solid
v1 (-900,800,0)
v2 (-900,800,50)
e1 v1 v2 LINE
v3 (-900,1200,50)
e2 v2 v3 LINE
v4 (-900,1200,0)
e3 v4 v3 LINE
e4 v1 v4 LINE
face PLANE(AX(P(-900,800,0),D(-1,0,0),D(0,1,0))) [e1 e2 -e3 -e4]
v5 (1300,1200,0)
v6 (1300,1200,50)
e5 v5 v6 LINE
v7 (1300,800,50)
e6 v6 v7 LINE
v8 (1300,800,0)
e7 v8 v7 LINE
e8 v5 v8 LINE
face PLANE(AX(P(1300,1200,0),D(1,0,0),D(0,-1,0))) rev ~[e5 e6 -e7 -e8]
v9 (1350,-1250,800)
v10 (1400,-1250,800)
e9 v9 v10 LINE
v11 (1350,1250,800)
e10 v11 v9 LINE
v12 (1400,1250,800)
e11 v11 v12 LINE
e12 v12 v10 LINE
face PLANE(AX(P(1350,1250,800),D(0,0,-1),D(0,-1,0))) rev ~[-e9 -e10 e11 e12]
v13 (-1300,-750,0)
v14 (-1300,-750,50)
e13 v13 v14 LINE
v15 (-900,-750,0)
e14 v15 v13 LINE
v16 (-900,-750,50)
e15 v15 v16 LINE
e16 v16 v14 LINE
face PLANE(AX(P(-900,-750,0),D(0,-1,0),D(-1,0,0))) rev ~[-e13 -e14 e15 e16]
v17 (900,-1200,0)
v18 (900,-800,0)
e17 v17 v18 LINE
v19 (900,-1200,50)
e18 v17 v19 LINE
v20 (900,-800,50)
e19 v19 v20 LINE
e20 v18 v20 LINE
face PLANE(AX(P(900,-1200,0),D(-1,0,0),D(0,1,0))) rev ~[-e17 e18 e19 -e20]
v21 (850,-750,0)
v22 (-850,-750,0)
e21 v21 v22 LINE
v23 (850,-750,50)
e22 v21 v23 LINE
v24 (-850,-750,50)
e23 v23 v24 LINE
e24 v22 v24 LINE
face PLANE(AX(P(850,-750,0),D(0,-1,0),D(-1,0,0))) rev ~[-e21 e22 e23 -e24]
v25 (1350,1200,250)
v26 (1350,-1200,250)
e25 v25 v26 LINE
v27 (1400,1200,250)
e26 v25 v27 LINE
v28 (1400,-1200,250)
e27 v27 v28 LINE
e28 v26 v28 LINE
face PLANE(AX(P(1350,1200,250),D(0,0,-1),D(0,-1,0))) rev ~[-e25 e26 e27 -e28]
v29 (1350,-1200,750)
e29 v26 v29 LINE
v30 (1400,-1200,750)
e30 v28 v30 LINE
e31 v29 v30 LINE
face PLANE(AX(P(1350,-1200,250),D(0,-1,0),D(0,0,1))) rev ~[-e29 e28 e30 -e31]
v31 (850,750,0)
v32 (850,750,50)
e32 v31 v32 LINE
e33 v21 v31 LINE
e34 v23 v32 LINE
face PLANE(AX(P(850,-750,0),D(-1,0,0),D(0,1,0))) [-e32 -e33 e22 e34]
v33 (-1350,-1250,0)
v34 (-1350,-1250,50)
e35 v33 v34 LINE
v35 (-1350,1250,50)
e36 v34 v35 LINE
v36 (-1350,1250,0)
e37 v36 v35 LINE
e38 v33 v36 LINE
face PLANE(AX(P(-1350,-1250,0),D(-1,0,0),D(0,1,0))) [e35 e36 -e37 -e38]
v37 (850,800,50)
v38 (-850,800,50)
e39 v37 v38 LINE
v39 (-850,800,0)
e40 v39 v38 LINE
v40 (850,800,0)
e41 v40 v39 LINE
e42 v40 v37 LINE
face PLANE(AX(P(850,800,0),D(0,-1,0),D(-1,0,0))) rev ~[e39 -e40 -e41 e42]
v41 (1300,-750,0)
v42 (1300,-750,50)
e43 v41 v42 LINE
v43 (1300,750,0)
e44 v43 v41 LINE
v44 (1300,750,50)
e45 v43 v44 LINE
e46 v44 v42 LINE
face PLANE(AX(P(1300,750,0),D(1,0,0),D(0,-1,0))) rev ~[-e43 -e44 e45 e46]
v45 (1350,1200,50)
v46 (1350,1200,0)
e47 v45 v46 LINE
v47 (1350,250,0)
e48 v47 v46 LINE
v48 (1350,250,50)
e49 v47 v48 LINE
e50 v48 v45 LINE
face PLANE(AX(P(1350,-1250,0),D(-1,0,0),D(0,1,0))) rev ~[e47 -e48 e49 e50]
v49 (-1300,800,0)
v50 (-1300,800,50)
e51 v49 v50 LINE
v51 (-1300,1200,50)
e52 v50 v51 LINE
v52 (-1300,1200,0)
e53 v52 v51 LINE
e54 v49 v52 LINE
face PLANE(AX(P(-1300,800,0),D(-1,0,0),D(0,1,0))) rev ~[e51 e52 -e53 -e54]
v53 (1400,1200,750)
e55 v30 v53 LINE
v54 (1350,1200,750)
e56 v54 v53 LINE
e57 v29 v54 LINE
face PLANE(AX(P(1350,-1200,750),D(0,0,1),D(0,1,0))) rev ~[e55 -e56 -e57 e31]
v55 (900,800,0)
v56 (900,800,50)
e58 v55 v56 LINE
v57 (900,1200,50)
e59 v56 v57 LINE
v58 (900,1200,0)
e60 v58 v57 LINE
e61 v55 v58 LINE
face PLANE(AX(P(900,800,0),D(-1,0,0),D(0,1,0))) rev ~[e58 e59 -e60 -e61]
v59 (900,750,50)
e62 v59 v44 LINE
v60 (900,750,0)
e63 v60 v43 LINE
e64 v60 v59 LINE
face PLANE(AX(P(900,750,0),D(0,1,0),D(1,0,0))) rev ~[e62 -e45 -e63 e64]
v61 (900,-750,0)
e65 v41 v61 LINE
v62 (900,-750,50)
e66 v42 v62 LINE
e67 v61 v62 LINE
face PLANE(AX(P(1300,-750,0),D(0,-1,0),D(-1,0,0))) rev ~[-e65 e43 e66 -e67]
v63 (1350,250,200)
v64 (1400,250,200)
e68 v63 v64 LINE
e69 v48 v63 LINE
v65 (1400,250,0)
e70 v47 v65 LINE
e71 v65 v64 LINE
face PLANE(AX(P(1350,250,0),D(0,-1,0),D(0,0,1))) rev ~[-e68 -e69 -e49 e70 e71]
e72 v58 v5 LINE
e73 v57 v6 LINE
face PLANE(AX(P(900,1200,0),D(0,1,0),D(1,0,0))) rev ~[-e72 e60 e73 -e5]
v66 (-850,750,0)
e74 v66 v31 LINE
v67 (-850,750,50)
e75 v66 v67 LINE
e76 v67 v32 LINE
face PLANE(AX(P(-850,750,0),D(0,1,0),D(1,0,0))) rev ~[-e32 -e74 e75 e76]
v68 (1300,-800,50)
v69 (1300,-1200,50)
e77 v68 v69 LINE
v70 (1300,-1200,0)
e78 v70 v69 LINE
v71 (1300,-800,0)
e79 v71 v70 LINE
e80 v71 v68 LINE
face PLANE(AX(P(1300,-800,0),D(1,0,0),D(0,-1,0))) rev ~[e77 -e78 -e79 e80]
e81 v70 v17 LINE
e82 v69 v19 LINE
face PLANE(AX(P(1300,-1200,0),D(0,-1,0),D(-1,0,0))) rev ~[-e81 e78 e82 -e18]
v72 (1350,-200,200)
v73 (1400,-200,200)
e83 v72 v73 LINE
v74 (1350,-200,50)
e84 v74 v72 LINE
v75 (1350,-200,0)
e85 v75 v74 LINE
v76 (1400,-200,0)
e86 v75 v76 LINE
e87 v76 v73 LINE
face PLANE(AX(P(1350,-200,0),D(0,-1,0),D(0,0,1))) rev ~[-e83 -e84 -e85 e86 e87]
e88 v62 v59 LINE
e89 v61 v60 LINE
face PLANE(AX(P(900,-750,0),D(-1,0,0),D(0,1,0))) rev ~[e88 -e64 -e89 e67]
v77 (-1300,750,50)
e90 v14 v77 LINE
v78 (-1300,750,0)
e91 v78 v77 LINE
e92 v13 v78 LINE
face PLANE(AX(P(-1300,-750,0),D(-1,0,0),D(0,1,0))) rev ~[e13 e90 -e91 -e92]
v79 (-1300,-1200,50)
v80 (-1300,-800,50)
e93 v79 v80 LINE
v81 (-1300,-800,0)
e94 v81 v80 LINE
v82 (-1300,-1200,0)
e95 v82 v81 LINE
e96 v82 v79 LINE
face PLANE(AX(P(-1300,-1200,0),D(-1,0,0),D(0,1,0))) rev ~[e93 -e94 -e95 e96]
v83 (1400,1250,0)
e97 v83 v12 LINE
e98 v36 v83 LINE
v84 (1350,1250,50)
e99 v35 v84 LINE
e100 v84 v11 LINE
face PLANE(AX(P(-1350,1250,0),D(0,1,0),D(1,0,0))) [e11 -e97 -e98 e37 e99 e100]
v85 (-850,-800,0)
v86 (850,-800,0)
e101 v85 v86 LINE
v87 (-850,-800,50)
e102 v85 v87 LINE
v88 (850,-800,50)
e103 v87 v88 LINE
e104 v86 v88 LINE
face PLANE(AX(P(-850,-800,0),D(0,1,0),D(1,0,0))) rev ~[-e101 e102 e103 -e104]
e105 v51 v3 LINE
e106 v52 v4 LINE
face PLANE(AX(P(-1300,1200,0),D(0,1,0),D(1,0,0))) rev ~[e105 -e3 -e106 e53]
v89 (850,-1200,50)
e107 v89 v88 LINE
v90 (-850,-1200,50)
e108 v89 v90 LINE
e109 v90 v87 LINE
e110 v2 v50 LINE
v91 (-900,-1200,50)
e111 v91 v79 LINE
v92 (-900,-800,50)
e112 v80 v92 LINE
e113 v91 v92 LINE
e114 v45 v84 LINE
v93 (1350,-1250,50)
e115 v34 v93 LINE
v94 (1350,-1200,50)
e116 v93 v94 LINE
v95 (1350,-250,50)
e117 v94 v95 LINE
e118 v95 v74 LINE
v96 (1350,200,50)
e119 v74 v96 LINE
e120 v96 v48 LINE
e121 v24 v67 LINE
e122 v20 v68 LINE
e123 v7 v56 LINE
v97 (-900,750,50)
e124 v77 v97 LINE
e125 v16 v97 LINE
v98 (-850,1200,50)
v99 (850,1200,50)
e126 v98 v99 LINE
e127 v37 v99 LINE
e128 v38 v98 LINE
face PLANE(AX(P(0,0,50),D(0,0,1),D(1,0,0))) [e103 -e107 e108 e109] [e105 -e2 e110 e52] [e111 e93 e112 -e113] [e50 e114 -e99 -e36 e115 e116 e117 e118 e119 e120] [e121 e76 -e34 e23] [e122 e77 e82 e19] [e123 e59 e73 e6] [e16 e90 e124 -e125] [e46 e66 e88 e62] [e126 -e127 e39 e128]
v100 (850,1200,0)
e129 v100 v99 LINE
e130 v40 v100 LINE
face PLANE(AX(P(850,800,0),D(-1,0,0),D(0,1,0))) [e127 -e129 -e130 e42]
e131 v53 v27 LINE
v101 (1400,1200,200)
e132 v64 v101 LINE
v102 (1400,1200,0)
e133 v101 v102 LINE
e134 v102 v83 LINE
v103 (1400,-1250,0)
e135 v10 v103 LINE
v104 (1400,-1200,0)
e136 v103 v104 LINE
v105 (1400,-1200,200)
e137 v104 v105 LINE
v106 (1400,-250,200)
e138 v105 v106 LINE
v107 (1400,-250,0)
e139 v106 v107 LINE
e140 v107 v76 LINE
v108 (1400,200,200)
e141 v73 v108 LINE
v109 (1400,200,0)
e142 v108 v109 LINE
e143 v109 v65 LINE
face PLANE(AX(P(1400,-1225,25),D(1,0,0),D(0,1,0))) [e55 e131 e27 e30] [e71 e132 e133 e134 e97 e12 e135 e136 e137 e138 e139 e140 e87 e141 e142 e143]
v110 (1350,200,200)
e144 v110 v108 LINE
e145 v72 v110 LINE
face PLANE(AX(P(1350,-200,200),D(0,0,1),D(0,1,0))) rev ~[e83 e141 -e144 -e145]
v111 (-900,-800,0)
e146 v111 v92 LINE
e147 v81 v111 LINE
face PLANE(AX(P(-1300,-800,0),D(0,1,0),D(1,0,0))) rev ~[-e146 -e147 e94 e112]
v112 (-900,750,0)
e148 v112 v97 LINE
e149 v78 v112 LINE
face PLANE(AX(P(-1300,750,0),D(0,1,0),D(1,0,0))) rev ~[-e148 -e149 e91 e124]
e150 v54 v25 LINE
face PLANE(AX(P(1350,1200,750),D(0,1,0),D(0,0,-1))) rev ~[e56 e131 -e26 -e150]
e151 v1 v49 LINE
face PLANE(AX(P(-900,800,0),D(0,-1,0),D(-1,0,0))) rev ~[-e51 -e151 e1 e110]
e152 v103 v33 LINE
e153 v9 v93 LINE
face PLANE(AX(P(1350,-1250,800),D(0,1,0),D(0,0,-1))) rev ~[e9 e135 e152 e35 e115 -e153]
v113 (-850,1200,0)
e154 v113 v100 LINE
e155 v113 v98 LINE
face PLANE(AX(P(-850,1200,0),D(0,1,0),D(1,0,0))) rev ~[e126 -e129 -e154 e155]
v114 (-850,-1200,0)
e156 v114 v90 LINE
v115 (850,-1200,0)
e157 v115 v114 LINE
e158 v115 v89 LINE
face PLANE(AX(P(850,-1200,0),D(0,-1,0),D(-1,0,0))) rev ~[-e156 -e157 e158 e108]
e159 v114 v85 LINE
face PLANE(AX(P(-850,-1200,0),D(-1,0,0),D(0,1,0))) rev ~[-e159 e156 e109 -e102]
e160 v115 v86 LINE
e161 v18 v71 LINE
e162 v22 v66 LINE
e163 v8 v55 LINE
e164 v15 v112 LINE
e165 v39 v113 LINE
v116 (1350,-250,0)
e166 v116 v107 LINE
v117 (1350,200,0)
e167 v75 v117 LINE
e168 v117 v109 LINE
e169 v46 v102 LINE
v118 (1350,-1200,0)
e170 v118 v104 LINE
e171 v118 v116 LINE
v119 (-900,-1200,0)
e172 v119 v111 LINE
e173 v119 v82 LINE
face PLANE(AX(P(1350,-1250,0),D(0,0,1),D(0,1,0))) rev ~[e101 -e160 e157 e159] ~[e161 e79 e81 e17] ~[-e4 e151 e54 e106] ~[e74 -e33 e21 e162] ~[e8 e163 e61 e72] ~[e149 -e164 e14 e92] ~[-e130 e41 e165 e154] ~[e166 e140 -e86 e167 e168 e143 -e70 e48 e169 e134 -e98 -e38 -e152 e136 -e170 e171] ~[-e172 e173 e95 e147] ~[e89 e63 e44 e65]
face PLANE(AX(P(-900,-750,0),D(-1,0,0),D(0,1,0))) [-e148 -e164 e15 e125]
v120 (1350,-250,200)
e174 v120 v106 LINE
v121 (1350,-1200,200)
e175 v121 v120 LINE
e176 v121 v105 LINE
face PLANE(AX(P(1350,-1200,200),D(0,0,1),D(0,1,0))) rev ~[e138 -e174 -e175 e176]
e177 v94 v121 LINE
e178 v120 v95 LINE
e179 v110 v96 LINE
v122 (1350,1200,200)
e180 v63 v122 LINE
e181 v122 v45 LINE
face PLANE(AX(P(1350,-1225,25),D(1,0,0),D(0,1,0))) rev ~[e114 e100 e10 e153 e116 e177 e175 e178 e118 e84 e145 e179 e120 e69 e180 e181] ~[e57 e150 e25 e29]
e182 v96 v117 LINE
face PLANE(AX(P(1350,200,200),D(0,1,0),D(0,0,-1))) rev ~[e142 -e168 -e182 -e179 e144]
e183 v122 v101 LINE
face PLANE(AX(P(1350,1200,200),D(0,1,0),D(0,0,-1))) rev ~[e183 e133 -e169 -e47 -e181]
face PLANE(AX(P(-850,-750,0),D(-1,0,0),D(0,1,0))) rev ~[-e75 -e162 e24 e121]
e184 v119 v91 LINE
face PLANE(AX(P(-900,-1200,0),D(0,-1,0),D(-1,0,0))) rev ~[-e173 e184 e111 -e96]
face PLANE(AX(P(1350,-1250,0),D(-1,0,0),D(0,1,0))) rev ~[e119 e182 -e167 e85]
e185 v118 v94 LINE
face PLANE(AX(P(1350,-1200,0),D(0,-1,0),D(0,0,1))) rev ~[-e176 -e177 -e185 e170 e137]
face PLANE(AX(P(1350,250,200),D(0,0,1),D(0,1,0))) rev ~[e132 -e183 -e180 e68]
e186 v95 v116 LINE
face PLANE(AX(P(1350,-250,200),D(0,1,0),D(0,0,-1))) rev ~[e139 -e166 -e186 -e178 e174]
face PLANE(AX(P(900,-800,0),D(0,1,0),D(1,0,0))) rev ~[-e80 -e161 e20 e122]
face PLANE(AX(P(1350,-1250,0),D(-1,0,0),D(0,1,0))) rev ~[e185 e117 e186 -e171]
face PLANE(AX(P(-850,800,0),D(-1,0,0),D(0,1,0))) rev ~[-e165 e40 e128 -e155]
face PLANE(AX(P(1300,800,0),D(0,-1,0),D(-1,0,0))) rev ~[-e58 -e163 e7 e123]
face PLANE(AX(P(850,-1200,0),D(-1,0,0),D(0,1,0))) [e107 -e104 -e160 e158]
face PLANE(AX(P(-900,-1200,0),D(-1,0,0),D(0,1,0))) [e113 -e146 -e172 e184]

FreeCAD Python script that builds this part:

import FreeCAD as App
import Part
import Sketcher
from FreeCAD import Vector
Q = App.Units.Quantity


def add_polygon(sketch, points):
    """Adds a closed chain of lines whose ends are joined by coincident constraints."""
    first, n = sketch.GeometryCount, len(points)
    for a, b in zip(points, points[1:] + points[:1]):
        sketch.addGeometry(Part.LineSegment(App.Vector(*a, 0), App.Vector(*b, 0)), False)
    for i in range(n):
        sketch.addConstraint(Sketcher.Constraint("Coincident", first + i, 2, first + (i + 1) % n, 1))

doc = App.newDocument("Part")
params = doc.addObject("Spreadsheet::Sheet", "Params")
for row, (alias, value) in enumerate([
    ("sketch1_width", "2700 mm"),
    ("sketch1_width2", "400 mm"),
    ("sketch1_width3", "1700 mm"),
    ("sketch1_height", "2500 mm"),
    ("sketch1_height2", "1500 mm"),
    ("pad1_length", "50 mm"),
    ("sketch2_width", "50 mm"),
    ("sketch2_width2", "950 mm"),
    ("sketch2_width3", "400 mm"),
    ("sketch2_height", "200 mm"),
    ("sketch2_height2", "800 mm"),
    ("pad2_length", "50 mm"),
], start=1):
    params.set(f"A{row}", alias)
    params.set(f"B{row}", "=" + value)
    params.setAlias(f"B{row}", alias)

body = doc.addObject("PartDesign::Body", "Body")

sketch1 = body.newObject("Sketcher::SketchObject", "Sketch")
sketch1.AttachmentSupport = (doc.getObject("XY_Plane"), [""])
sketch1.MapMode = "FlatFace"
add_polygon(sketch1, [(-1350, 1250), (-1350, -1250), (1350, -1250), (1350, 1250)])
add_polygon(sketch1, [(-1300, 1200), (-900, 1200), (-900, 800), (-1300, 800)])
add_polygon(sketch1, [(-850, 800), (-850, 1200), (850, 1200), (850, 800)])
add_polygon(sketch1, [(900, 1200), (1300, 1200), (1300, 800), (900, 800)])
add_polygon(sketch1, [(1300, 750), (1300, -750), (900, -750), (900, 750)])
add_polygon(sketch1, [(850, -750), (-850, -750), (-850, 750), (850, 750)])
add_polygon(sketch1, [(1300, -800), (1300, -1200), (900, -1200), (900, -800)])
add_polygon(sketch1, [(850, -1200), (-850, -1200), (-850, -800), (850, -800)])
add_polygon(sketch1, [(-900, -1200), (-1300, -1200), (-1300, -800), (-900, -800)])
add_polygon(sketch1, [(-1300, -750), (-1300, 750), (-900, 750), (-900, -750)])
sketch1.addConstraint([
    Sketcher.Constraint("Vertical", 0),
    Sketcher.Constraint("Horizontal", 1),
    Sketcher.Constraint("Vertical", 2),
    Sketcher.Constraint("Horizontal", 3),
    Sketcher.Constraint("Horizontal", 4),
    Sketcher.Constraint("Vertical", 5),
    Sketcher.Constraint("Horizontal", 6),
    Sketcher.Constraint("Vertical", 7),
    Sketcher.Constraint("Vertical", 8),
    Sketcher.Constraint("Horizontal", 9),
    Sketcher.Constraint("Vertical", 10),
    Sketcher.Constraint("Horizontal", 11),
    Sketcher.Constraint("Horizontal", 12),
    Sketcher.Constraint("Vertical", 13),
    Sketcher.Constraint("Horizontal", 14),
    Sketcher.Constraint("Vertical", 15),
    Sketcher.Constraint("Vertical", 16),
    Sketcher.Constraint("Horizontal", 17),
    Sketcher.Constraint("Vertical", 18),
    Sketcher.Constraint("Horizontal", 19),
    Sketcher.Constraint("Horizontal", 20),
    Sketcher.Constraint("Vertical", 21),
    Sketcher.Constraint("Horizontal", 22),
    Sketcher.Constraint("Vertical", 23),
    Sketcher.Constraint("Vertical", 24),
    Sketcher.Constraint("Horizontal", 25),
    Sketcher.Constraint("Vertical", 26),
    Sketcher.Constraint("Horizontal", 27),
    Sketcher.Constraint("Horizontal", 28),
    Sketcher.Constraint("Vertical", 29),
    Sketcher.Constraint("Horizontal", 30),
    Sketcher.Constraint("Vertical", 31),
    Sketcher.Constraint("Horizontal", 32),
    Sketcher.Constraint("Vertical", 33),
    Sketcher.Constraint("Horizontal", 34),
    Sketcher.Constraint("Vertical", 35),
    Sketcher.Constraint("Vertical", 36),
    Sketcher.Constraint("Horizontal", 37),
    Sketcher.Constraint("Vertical", 38),
    Sketcher.Constraint("Horizontal", 39),
    Sketcher.Constraint("Symmetric", 0, 2, 2, 2, -1, 1),
    Sketcher.Constraint("Symmetric", 20, 2, 22, 2, -1, 1),
    Sketcher.Constraint("Symmetric", 7, 2, 24, 2, -1, 1),
    Sketcher.Constraint("Symmetric", 5, 2, 26, 2, -1, 1),
    Sketcher.Constraint("Symmetric", 9, 2, 28, 2, -1, 1),
    Sketcher.Constraint("Symmetric", 11, 2, 30, 2, -1, 1),
    Sketcher.Constraint("Symmetric", 12, 2, 32, 2, -1, 1),
    Sketcher.Constraint("Symmetric", 14, 2, 34, 2, -1, 1),
    Sketcher.Constraint("Symmetric", 16, 2, 36, 2, -1, 1),
    Sketcher.Constraint("Symmetric", 18, 2, 38, 2, -1, 1),
    Sketcher.Constraint("Symmetric", 7, 2, 12, 2, -2),
    Sketcher.Constraint("Symmetric", 5, 2, 14, 2, -2),
    Sketcher.Constraint("Horizontal", 7, 2, 8, 2),
    Sketcher.Constraint("Horizontal", 6, 2, 10, 2),
    Sketcher.Constraint("Horizontal", 17, 2, 20, 2),
    Sketcher.Constraint("Horizontal", 19, 2, 21, 2),
    Sketcher.Constraint("Vertical", 13, 2, 16, 2),
    Sketcher.Constraint("Vertical", 15, 2, 17, 2),
    Sketcher.Constraint("Vertical", 11, 2, 20, 2),
    Sketcher.Constraint("Vertical", 10, 2, 22, 2),
    Sketcher.Constraint("Equal", 39, 5),
    Sketcher.Constraint("DistanceX", 1, 1, 1, 2, Q("2700 mm")),
    Sketcher.Constraint("DistanceX", 4, 1, 4, 2, Q("400 mm")),
    Sketcher.Constraint("DistanceX", 9, 1, 9, 2, Q("1700 mm")),
    Sketcher.Constraint("DistanceY", 0, 2, 0, 1, Q("2500 mm")),
    Sketcher.Constraint("DistanceY", 16, 2, 16, 1, Q("1500 mm")),
    Sketcher.Constraint("DistanceX", 4, 2, -1, 1, Q("900 mm")),
    Sketcher.Constraint("DistanceY", -1, 1, 4, 2, Q("1200 mm")),
])
sketch1.setExpression("Constraints[101]", "Params.sketch1_width")
sketch1.setExpression("Constraints[102]", "Params.sketch1_width2")
sketch1.setExpression("Constraints[103]", "Params.sketch1_width3")
sketch1.setExpression("Constraints[104]", "Params.sketch1_height")
sketch1.setExpression("Constraints[105]", "Params.sketch1_height2")
pad1 = body.newObject("PartDesign::Pad", "Pad")
pad1.Profile = sketch1
pad1.setExpression("Length", "Params.pad1_length")

sketch2 = body.newObject("Sketcher::SketchObject", "Sketch001")
sketch2.AttachmentSupport = (doc.getObject("YZ_Plane"), [""])
sketch2.MapMode = "FlatFace"
sketch2.AttachmentOffset = App.Placement(Vector(0, 0, 1350), App.Rotation())
add_polygon(sketch2, [(-1250, 0), (-1200, 0), (-1200, 200), (-250, 200), (-250, 0), (-200, 0), (-200, 200), (200, 200), (200, 0), (250, 0), (250, 200), (1200, 200), (1200, 0), (1250, 0), (1250, 800), (-1250, 800)])
add_polygon(sketch2, [(-1200, 250), (-1200, 750), (1200, 750), (1200, 250)])
sketch2.addConstraint([
    Sketcher.Constraint("Horizontal", 0),
    Sketcher.Constraint("Vertical", 1),
    Sketcher.Constraint("Horizontal", 2),
    Sketcher.Constraint("Vertical", 3),
    Sketcher.Constraint("Horizontal", 4),
    Sketcher.Constraint("Vertical", 5),
    Sketcher.Constraint("Horizontal", 6),
    Sketcher.Constraint("Vertical", 7),
    Sketcher.Constraint("Horizontal", 8),
    Sketcher.Constraint("Vertical", 9),
    Sketcher.Constraint("Horizontal", 10),
    Sketcher.Constraint("Vertical", 11),
    Sketcher.Constraint("Horizontal", 12),
    Sketcher.Constraint("Vertical", 13),
    Sketcher.Constraint("Horizontal", 14),
    Sketcher.Constraint("Vertical", 15),
    Sketcher.Constraint("Vertical", 16),
    Sketcher.Constraint("Horizontal", 17),
    Sketcher.Constraint("Vertical", 18),
    Sketcher.Constraint("Horizontal", 19),
    Sketcher.Constraint("Symmetric", 4, 2, 7, 2, -1, 1),
    Sketcher.Constraint("Symmetric", 0, 2, 11, 2, -1, 1),
    Sketcher.Constraint("Symmetric", 3, 2, 8, 2, -2),
    Sketcher.Constraint("Symmetric", 12, 2, 15, 2, -2),
    Sketcher.Constraint("Horizontal", 2, 2, 5, 2),
    Sketcher.Constraint("Horizontal", 6, 2, 9, 2),
    Sketcher.Constraint("Vertical", 1, 2, 16, 2),
    Sketcher.Constraint("Vertical", 11, 2, 17, 2),
    Sketcher.Constraint("Equal", 0, 4),
    Sketcher.Constraint("DistanceX", 0, 1, 0, 2, Q("50 mm")),
    Sketcher.Constraint("DistanceX", 2, 1, 2, 2, Q("950 mm")),
    Sketcher.Constraint("DistanceX", 6, 1, 6, 2, Q("400 mm")),
    Sketcher.Constraint("DistanceY", 1, 1, 1, 2, Q("200 mm")),
    Sketcher.Constraint("DistanceY", 13, 1, 13, 2, Q("800 mm")),
    Sketcher.Constraint("DistanceY", 16, 1, 16, 2, Q("500 mm")),
    Sketcher.Constraint("DistanceY", -1, 1, 16, 2, Q("750 mm")),
])
sketch2.setExpression("Constraints[49]", "Params.sketch2_width")
sketch2.setExpression("Constraints[50]", "Params.sketch2_width2")
sketch2.setExpression("Constraints[51]", "Params.sketch2_width3")
sketch2.setExpression("Constraints[52]", "Params.sketch2_height")
sketch2.setExpression("Constraints[53]", "Params.sketch2_height2")
pad2 = body.newObject("PartDesign::Pad", "Pad001")
pad2.Profile = sketch2
pad2.setExpression("Length", "Params.pad2_length")

doc.recompute()
